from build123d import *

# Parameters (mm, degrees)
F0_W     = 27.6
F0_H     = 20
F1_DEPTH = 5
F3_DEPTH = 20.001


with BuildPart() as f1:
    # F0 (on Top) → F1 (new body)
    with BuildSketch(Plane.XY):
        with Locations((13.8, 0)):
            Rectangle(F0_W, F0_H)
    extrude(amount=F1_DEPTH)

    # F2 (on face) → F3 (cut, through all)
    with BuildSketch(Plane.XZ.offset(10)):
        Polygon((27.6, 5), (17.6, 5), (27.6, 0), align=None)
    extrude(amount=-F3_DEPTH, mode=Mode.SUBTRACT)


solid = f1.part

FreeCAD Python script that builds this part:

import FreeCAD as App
import Part
import Sketcher

V = App.Vector


def add_polygon(sketch, points):
    """Adds a closed chain of lines whose ends are joined by coincident constraints."""
    first, n = sketch.GeometryCount, len(points)
    for a, b in zip(points, points[1:] + points[:1]):
        sketch.addGeometry(Part.LineSegment(App.Vector(*a, 0), App.Vector(*b, 0)), False)
    for i in range(n):
        sketch.addConstraint(Sketcher.Constraint("Coincident", first + i, 2, first + (i + 1) % n, 1))

doc = App.newDocument("Part")
body = doc.addObject("PartDesign::Body", "Body")

sketch1 = body.newObject("Sketcher::SketchObject", "Sketch")
sketch1.AttachmentSupport = (doc.getObject("XY_Plane"), [""])
sketch1.MapMode = "FlatFace"
add_polygon(sketch1, [(0, 10), (0, -10), (28, -10), (28, 10)])
sketch1.addConstraint(Sketcher.Constraint("Vertical", 0))
sketch1.addConstraint(Sketcher.Constraint("Horizontal", 1))
sketch1.addConstraint(Sketcher.Constraint("Vertical", 2))
sketch1.addConstraint(Sketcher.Constraint("Horizontal", 3))
sketch1.addConstraint(Sketcher.Constraint("Symmetric", 0, 2, 3, 2, -1, 1))
sketch1.addConstraint(Sketcher.Constraint("DistanceY", 0, 2, 0, 1, 20.0))
sketch1.addConstraint(Sketcher.Constraint("DistanceX", 1, 1, 1, 2, 27.6))
pad1 = body.newObject("PartDesign::Pad", "Pad")
pad1.Profile = sketch1
pad1.Length = 5

sketch2 = body.newObject("Sketcher::SketchObject", "Sketch001")
sketch2.AttachmentSupport = (doc.getObject("XZ_Plane"), [""])
sketch2.MapMode = "FlatFace"
sketch2.AttachmentOffset = App.Placement(V(0, 0, 10), App.Rotation())
add_polygon(sketch2, [(28, 5), (18, 5), (28, 0)])
sketch2.addConstraint(Sketcher.Constraint("Horizontal", 0))
sketch2.addConstraint(Sketcher.Constraint("Vertical", 2))
sketch2.addConstraint(Sketcher.Constraint("PointOnObject", 1, 2, -1))
sketch2.addConstraint(Sketcher.Constraint("DistanceX", 0, 2, 0, 1, 10.0))
sketch2.addConstraint(Sketcher.Constraint("DistanceY", 2, 1, 2, 2, 5.0))
sketch2.addConstraint(Sketcher.Constraint("DistanceX", -1, 1, 0, 2, 17.6))
pocket1 = body.newObject("PartDesign::Pocket", "Pocket")
pocket1.Profile = sketch2
pocket1.Type = "ThroughAll"

doc.recompute()
